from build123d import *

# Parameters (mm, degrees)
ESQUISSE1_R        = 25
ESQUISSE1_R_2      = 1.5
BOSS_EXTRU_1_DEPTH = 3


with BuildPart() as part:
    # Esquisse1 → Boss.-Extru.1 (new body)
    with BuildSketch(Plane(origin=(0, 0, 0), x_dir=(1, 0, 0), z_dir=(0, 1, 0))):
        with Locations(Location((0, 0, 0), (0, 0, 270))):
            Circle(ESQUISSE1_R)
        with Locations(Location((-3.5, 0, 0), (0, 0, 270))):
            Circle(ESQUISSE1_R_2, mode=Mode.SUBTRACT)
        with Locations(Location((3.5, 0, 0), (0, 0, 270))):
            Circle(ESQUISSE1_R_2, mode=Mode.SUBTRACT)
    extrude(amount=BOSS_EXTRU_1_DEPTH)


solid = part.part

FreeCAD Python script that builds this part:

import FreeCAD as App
import Part
import Sketcher

V = App.Vector

doc = App.newDocument("Part")
body = doc.addObject("PartDesign::Body", "Body")

# Sketch on XZ plane
sketch1 = body.newObject("Sketcher::SketchObject", "Sketch")
sketch1.AttachmentSupport = (doc.getObject("XZ_Plane"), [""])
sketch1.MapMode = "FlatFace"
sketch1.addGeometry([
    Part.Circle(V(0, 0, 0), V(0, 0, 1), 25),
    Part.Circle(V(-3.5, 0, 0), V(0, 0, 1), 1.5),
    Part.Circle(V(3.5, 0, 0), V(0, 0, 1), 1.5),
], False)
sketch1.addConstraint([
    Sketcher.Constraint("Coincident", 0, 3, -1, 1),
    Sketcher.Constraint("Equal", 1, 2),
    Sketcher.Constraint("Symmetric", 1, 3, 2, 3, -1, 1),
    Sketcher.Constraint("PointOnObject", 1, 3, -1),
    Sketcher.Constraint("Diameter", 0, 50.0),
    Sketcher.Constraint("Diameter", 1, 3.0),
    Sketcher.Constraint("DistanceX", 1, 3, 2, 3, 7.0),
])
pad1 = body.newObject("PartDesign::Pad", "Pad")
pad1.Profile = sketch1
pad1.Length = 3
pad1.Reversed = True

doc.recompute()
